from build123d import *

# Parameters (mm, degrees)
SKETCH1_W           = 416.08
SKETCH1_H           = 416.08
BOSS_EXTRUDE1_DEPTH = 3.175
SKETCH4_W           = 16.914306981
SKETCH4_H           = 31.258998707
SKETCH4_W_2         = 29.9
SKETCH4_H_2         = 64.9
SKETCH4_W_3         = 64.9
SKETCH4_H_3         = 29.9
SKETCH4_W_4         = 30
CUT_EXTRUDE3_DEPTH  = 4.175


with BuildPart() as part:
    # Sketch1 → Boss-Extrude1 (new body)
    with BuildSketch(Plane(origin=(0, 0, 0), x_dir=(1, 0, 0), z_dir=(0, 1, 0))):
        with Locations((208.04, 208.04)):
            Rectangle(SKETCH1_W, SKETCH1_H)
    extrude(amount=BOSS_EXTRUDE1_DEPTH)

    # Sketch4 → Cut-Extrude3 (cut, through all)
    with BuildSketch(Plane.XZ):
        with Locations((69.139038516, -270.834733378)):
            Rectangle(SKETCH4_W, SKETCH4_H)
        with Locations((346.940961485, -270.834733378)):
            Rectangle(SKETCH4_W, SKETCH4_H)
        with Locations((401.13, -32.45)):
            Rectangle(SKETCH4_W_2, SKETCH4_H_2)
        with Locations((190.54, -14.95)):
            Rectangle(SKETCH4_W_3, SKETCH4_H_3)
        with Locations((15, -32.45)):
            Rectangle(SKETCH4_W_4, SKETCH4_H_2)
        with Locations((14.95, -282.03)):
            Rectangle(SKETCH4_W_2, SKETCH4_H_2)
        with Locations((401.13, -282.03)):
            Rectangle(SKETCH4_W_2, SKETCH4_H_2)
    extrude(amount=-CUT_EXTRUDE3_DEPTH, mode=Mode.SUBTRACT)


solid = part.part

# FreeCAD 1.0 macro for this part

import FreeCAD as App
import Part
import Sketcher

V = App.Vector

doc = App.newDocument("Part")
body = doc.addObject("PartDesign::Body", "Body")

# Sketch on XZ plane
sketch1 = doc.addObject("Sketcher::SketchObject", "Sketch")
body.addObject(sketch1)
sketch1.AttachmentSupport = (doc.XZ_Plane, [""])
sketch1.MapMode = "FlatFace"
sketch1.addGeometry([
    Part.LineSegment(V(0, -416.08, 0), V(0, 0, 0)),
    Part.LineSegment(V(0, 0, 0), V(416.08, 0, 0)),
    Part.LineSegment(V(416.08, 0, 0), V(416.08, -416.08, 0)),
    Part.LineSegment(V(416.08, -416.08, 0), V(0, -416.08, 0)),
], False)
sketch1.addConstraint([
    Sketcher.Constraint("Coincident", 0, 2, 1, 1),
    Sketcher.Constraint("Coincident", 1, 2, 2, 1),
    Sketcher.Constraint("Coincident", 2, 2, 3, 1),
    Sketcher.Constraint("Coincident", 3, 2, 0, 1),
    Sketcher.Constraint("Vertical", 0),
    Sketcher.Constraint("Horizontal", 1),
    Sketcher.Constraint("Vertical", 2),
    Sketcher.Constraint("Horizontal", 3),
    Sketcher.Constraint("Coincident", 0, 2, -1, 1),
    Sketcher.Constraint("Equal", 3, 0),
    Sketcher.Constraint("DistanceX", 1, 1, 1, 2, 416.08),
])
pad1 = doc.addObject("PartDesign::Pad", "Pad")
body.addObject(pad1)
pad1.Profile = sketch1
pad1.Length = 3.175
pad1.Reversed = True

# Sketch on XZ plane
sketch2 = doc.addObject("Sketcher::SketchObject", "Sketch001")
body.addObject(sketch2)
sketch2.AttachmentSupport = (doc.XZ_Plane, [""])
sketch2.MapMode = "FlatFace"
sketch2.addGeometry([
    Part.LineSegment(V(60.681885, -255.205234, 0), V(60.681885, -286.464233, 0)),  # 0
    Part.LineSegment(V(60.681885, -286.464233, 0), V(77.596192, -286.464233, 0)),  # 1
    Part.LineSegment(V(77.596192, -286.464233, 0), V(77.596192, -255.205234, 0)),  # 2
    Part.LineSegment(V(77.596192, -255.205234, 0), V(60.681885, -255.205234, 0)),  # 3
    Part.LineSegment(V(338.483808, -255.205234, 0), V(338.483808, -286.464233, 0)),  # 4
    Part.LineSegment(V(338.483808, -286.464233, 0), V(355.398115, -286.464233, 0)),  # 5
    Part.LineSegment(V(355.398115, -286.464233, 0), V(355.398115, -255.205234, 0)),  # 6
    Part.LineSegment(V(355.398115, -255.205234, 0), V(338.483808, -255.205234, 0)),  # 7
    Part.LineSegment(V(386.18, 0, 0), V(386.18, -64.9, 0)),  # 8
    Part.LineSegment(V(386.18, -64.9, 0), V(416.08, -64.9, 0)),  # 9
    Part.LineSegment(V(416.08, -64.9, 0), V(416.08, 0, 0)),  # 10
    Part.LineSegment(V(416.08, 0, 0), V(386.18, 0, 0)),  # 11
    Part.LineSegment(V(158.09, 0, 0), V(158.09, -29.9, 0)),  # 12
    Part.LineSegment(V(158.09, -29.9, 0), V(222.99, -29.9, 0)),  # 13
    Part.LineSegment(V(222.99, -29.9, 0), V(222.99, 0, 0)),  # 14
    Part.LineSegment(V(222.99, 0, 0), V(158.09, 0, 0)),  # 15
    Part.LineSegment(V(0, 0, 0), V(0, -64.9, 0)),  # 16
    Part.LineSegment(V(0, -64.9, 0), V(30, -64.9, 0)),  # 17
    Part.LineSegment(V(30, -64.9, 0), V(30, 0, 0)),  # 18
    Part.LineSegment(V(30, 0, 0), V(0, 0, 0)),  # 19
    Part.LineSegment(V(0, -249.58, 0), V(0, -314.48, 0)),  # 20
    Part.LineSegment(V(0, -314.48, 0), V(29.9, -314.48, 0)),  # 21
    Part.LineSegment(V(29.9, -314.48, 0), V(29.9, -249.58, 0)),  # 22
    Part.LineSegment(V(29.9, -249.58, 0), V(0, -249.58, 0)),  # 23
    Part.LineSegment(V(386.18, -249.58, 0), V(386.18, -314.48, 0)),  # 24
    Part.LineSegment(V(386.18, -314.48, 0), V(416.08, -314.48, 0)),  # 25
    Part.LineSegment(V(416.08, -314.48, 0), V(416.08, -249.58, 0)),  # 26
    Part.LineSegment(V(416.08, -249.58, 0), V(386.18, -249.58, 0)),  # 27
], False)
sketch2.addConstraint([
    Sketcher.Constraint("Coincident", 0, 2, 1, 1),
    Sketcher.Constraint("Coincident", 1, 2, 2, 1),
    Sketcher.Constraint("Coincident", 2, 2, 3, 1),
    Sketcher.Constraint("Coincident", 3, 2, 0, 1),
    Sketcher.Constraint("Coincident", 4, 2, 5, 1),
    Sketcher.Constraint("Coincident", 5, 2, 6, 1),
    Sketcher.Constraint("Coincident", 6, 2, 7, 1),
    Sketcher.Constraint("Coincident", 7, 2, 4, 1),
    Sketcher.Constraint("Coincident", 8, 2, 9, 1),
    Sketcher.Constraint("Coincident", 9, 2, 10, 1),
    Sketcher.Constraint("Coincident", 10, 2, 11, 1),
    Sketcher.Constraint("Coincident", 11, 2, 8, 1),
    Sketcher.Constraint("Coincident", 12, 2, 13, 1),
    Sketcher.Constraint("Coincident", 13, 2, 14, 1),
    Sketcher.Constraint("Coincident", 14, 2, 15, 1),
    Sketcher.Constraint("Coincident", 15, 2, 12, 1),
    Sketcher.Constraint("Coincident", 16, 2, 17, 1),
    Sketcher.Constraint("Coincident", 17, 2, 18, 1),
    Sketcher.Constraint("Coincident", 18, 2, 19, 1),
    Sketcher.Constraint("Coincident", 19, 2, 16, 1),
    Sketcher.Constraint("Coincident", 20, 2, 21, 1),
    Sketcher.Constraint("Coincident", 21, 2, 22, 1),
    Sketcher.Constraint("Coincident", 22, 2, 23, 1),
    Sketcher.Constraint("Coincident", 23, 2, 20, 1),
    Sketcher.Constraint("Coincident", 24, 2, 25, 1),
    Sketcher.Constraint("Coincident", 25, 2, 26, 1),
    Sketcher.Constraint("Coincident", 26, 2, 27, 1),
    Sketcher.Constraint("Coincident", 27, 2, 24, 1),
    Sketcher.Constraint("Vertical", 0),
    Sketcher.Constraint("Horizontal", 1),
    Sketcher.Constraint("Vertical", 2),
    Sketcher.Constraint("Horizontal", 3),
    Sketcher.Constraint("Vertical", 4),
    Sketcher.Constraint("Horizontal", 5),
    Sketcher.Constraint("Vertical", 6),
    Sketcher.Constraint("Horizontal", 7),
    Sketcher.Constraint("Vertical", 8),
    Sketcher.Constraint("Horizontal", 9),
    Sketcher.Constraint("Vertical", 10),
    Sketcher.Constraint("Horizontal", 11),
    Sketcher.Constraint("Vertical", 12),
    Sketcher.Constraint("Horizontal", 13),
    Sketcher.Constraint("Vertical", 14),
    Sketcher.Constraint("Horizontal", 15),
    Sketcher.Constraint("Vertical", 16),
    Sketcher.Constraint("Horizontal", 17),
    Sketcher.Constraint("Vertical", 18),
    Sketcher.Constraint("Horizontal", 19),
    Sketcher.Constraint("Vertical", 20),
    Sketcher.Constraint("Horizontal", 21),
    Sketcher.Constraint("Vertical", 22),
    Sketcher.Constraint("Horizontal", 23),
    Sketcher.Constraint("Vertical", 24),
    Sketcher.Constraint("Horizontal", 25),
    Sketcher.Constraint("Vertical", 26),
    Sketcher.Constraint("Horizontal", 27),
    Sketcher.Constraint("Coincident", 19, 2, -1, 1),
    Sketcher.Constraint("PointOnObject", 10, 2, -1),
    Sketcher.Constraint("PointOnObject", 14, 2, -1),
    Sketcher.Constraint("PointOnObject", 20, 2, -2),
    Sketcher.Constraint("Horizontal", 1, 2, 4, 2),
    Sketcher.Constraint("Horizontal", 3, 2, 6, 2),
    Sketcher.Constraint("Horizontal", 9, 2, 16, 2),
    Sketcher.Constraint("Horizontal", 21, 2, 24, 2),
    Sketcher.Constraint("Horizontal", 23, 2, 26, 2),
    Sketcher.Constraint("Vertical", 11, 2, 24, 2),
    Sketcher.Constraint("Vertical", 10, 2, 25, 2),
    Sketcher.Constraint("Equal", 3, 5),
    Sketcher.Constraint("Equal", 11, 21),
    Sketcher.Constraint("Equal", 15, 8),
    Sketcher.Constraint("Equal", 27, 12),
    Sketcher.Constraint("Equal", 18, 20),
    Sketcher.Constraint("DistanceX", 17, 1, 17, 2, 30.0),
    Sketcher.Constraint("DistanceX", 9, 1, 9, 2, 29.9),
    Sketcher.Constraint("DistanceX", 13, 1, 13, 2, 64.9),
    Sketcher.Constraint("DistanceY", 0, 2, 0, 1, 31.258999),
    Sketcher.Constraint("DistanceX", -1, 1, 8, 2, 386.18),
    Sketcher.Constraint("DistanceX", -1, 1, 12, 2, 158.09),
    Sketcher.Constraint("DistanceY", 20, 2, -1, 1, 314.48),
    Sketcher.Constraint("DistanceX", 1, 1, 1, 2, 16.914307),
    Sketcher.Constraint("DistanceX", 0, 2, 5, 2, 294.71623),
    Sketcher.Constraint("DistanceX", -1, 1, 0, 2, 60.681885),
    Sketcher.Constraint("DistanceY", 0, 2, -1, 1, 286.464233),
])
pocket1 = doc.addObject("PartDesign::Pocket", "Pocket")
body.addObject(pocket1)
pocket1.Profile = sketch2
pocket1.Type = "ThroughAll"

doc.recompute()
